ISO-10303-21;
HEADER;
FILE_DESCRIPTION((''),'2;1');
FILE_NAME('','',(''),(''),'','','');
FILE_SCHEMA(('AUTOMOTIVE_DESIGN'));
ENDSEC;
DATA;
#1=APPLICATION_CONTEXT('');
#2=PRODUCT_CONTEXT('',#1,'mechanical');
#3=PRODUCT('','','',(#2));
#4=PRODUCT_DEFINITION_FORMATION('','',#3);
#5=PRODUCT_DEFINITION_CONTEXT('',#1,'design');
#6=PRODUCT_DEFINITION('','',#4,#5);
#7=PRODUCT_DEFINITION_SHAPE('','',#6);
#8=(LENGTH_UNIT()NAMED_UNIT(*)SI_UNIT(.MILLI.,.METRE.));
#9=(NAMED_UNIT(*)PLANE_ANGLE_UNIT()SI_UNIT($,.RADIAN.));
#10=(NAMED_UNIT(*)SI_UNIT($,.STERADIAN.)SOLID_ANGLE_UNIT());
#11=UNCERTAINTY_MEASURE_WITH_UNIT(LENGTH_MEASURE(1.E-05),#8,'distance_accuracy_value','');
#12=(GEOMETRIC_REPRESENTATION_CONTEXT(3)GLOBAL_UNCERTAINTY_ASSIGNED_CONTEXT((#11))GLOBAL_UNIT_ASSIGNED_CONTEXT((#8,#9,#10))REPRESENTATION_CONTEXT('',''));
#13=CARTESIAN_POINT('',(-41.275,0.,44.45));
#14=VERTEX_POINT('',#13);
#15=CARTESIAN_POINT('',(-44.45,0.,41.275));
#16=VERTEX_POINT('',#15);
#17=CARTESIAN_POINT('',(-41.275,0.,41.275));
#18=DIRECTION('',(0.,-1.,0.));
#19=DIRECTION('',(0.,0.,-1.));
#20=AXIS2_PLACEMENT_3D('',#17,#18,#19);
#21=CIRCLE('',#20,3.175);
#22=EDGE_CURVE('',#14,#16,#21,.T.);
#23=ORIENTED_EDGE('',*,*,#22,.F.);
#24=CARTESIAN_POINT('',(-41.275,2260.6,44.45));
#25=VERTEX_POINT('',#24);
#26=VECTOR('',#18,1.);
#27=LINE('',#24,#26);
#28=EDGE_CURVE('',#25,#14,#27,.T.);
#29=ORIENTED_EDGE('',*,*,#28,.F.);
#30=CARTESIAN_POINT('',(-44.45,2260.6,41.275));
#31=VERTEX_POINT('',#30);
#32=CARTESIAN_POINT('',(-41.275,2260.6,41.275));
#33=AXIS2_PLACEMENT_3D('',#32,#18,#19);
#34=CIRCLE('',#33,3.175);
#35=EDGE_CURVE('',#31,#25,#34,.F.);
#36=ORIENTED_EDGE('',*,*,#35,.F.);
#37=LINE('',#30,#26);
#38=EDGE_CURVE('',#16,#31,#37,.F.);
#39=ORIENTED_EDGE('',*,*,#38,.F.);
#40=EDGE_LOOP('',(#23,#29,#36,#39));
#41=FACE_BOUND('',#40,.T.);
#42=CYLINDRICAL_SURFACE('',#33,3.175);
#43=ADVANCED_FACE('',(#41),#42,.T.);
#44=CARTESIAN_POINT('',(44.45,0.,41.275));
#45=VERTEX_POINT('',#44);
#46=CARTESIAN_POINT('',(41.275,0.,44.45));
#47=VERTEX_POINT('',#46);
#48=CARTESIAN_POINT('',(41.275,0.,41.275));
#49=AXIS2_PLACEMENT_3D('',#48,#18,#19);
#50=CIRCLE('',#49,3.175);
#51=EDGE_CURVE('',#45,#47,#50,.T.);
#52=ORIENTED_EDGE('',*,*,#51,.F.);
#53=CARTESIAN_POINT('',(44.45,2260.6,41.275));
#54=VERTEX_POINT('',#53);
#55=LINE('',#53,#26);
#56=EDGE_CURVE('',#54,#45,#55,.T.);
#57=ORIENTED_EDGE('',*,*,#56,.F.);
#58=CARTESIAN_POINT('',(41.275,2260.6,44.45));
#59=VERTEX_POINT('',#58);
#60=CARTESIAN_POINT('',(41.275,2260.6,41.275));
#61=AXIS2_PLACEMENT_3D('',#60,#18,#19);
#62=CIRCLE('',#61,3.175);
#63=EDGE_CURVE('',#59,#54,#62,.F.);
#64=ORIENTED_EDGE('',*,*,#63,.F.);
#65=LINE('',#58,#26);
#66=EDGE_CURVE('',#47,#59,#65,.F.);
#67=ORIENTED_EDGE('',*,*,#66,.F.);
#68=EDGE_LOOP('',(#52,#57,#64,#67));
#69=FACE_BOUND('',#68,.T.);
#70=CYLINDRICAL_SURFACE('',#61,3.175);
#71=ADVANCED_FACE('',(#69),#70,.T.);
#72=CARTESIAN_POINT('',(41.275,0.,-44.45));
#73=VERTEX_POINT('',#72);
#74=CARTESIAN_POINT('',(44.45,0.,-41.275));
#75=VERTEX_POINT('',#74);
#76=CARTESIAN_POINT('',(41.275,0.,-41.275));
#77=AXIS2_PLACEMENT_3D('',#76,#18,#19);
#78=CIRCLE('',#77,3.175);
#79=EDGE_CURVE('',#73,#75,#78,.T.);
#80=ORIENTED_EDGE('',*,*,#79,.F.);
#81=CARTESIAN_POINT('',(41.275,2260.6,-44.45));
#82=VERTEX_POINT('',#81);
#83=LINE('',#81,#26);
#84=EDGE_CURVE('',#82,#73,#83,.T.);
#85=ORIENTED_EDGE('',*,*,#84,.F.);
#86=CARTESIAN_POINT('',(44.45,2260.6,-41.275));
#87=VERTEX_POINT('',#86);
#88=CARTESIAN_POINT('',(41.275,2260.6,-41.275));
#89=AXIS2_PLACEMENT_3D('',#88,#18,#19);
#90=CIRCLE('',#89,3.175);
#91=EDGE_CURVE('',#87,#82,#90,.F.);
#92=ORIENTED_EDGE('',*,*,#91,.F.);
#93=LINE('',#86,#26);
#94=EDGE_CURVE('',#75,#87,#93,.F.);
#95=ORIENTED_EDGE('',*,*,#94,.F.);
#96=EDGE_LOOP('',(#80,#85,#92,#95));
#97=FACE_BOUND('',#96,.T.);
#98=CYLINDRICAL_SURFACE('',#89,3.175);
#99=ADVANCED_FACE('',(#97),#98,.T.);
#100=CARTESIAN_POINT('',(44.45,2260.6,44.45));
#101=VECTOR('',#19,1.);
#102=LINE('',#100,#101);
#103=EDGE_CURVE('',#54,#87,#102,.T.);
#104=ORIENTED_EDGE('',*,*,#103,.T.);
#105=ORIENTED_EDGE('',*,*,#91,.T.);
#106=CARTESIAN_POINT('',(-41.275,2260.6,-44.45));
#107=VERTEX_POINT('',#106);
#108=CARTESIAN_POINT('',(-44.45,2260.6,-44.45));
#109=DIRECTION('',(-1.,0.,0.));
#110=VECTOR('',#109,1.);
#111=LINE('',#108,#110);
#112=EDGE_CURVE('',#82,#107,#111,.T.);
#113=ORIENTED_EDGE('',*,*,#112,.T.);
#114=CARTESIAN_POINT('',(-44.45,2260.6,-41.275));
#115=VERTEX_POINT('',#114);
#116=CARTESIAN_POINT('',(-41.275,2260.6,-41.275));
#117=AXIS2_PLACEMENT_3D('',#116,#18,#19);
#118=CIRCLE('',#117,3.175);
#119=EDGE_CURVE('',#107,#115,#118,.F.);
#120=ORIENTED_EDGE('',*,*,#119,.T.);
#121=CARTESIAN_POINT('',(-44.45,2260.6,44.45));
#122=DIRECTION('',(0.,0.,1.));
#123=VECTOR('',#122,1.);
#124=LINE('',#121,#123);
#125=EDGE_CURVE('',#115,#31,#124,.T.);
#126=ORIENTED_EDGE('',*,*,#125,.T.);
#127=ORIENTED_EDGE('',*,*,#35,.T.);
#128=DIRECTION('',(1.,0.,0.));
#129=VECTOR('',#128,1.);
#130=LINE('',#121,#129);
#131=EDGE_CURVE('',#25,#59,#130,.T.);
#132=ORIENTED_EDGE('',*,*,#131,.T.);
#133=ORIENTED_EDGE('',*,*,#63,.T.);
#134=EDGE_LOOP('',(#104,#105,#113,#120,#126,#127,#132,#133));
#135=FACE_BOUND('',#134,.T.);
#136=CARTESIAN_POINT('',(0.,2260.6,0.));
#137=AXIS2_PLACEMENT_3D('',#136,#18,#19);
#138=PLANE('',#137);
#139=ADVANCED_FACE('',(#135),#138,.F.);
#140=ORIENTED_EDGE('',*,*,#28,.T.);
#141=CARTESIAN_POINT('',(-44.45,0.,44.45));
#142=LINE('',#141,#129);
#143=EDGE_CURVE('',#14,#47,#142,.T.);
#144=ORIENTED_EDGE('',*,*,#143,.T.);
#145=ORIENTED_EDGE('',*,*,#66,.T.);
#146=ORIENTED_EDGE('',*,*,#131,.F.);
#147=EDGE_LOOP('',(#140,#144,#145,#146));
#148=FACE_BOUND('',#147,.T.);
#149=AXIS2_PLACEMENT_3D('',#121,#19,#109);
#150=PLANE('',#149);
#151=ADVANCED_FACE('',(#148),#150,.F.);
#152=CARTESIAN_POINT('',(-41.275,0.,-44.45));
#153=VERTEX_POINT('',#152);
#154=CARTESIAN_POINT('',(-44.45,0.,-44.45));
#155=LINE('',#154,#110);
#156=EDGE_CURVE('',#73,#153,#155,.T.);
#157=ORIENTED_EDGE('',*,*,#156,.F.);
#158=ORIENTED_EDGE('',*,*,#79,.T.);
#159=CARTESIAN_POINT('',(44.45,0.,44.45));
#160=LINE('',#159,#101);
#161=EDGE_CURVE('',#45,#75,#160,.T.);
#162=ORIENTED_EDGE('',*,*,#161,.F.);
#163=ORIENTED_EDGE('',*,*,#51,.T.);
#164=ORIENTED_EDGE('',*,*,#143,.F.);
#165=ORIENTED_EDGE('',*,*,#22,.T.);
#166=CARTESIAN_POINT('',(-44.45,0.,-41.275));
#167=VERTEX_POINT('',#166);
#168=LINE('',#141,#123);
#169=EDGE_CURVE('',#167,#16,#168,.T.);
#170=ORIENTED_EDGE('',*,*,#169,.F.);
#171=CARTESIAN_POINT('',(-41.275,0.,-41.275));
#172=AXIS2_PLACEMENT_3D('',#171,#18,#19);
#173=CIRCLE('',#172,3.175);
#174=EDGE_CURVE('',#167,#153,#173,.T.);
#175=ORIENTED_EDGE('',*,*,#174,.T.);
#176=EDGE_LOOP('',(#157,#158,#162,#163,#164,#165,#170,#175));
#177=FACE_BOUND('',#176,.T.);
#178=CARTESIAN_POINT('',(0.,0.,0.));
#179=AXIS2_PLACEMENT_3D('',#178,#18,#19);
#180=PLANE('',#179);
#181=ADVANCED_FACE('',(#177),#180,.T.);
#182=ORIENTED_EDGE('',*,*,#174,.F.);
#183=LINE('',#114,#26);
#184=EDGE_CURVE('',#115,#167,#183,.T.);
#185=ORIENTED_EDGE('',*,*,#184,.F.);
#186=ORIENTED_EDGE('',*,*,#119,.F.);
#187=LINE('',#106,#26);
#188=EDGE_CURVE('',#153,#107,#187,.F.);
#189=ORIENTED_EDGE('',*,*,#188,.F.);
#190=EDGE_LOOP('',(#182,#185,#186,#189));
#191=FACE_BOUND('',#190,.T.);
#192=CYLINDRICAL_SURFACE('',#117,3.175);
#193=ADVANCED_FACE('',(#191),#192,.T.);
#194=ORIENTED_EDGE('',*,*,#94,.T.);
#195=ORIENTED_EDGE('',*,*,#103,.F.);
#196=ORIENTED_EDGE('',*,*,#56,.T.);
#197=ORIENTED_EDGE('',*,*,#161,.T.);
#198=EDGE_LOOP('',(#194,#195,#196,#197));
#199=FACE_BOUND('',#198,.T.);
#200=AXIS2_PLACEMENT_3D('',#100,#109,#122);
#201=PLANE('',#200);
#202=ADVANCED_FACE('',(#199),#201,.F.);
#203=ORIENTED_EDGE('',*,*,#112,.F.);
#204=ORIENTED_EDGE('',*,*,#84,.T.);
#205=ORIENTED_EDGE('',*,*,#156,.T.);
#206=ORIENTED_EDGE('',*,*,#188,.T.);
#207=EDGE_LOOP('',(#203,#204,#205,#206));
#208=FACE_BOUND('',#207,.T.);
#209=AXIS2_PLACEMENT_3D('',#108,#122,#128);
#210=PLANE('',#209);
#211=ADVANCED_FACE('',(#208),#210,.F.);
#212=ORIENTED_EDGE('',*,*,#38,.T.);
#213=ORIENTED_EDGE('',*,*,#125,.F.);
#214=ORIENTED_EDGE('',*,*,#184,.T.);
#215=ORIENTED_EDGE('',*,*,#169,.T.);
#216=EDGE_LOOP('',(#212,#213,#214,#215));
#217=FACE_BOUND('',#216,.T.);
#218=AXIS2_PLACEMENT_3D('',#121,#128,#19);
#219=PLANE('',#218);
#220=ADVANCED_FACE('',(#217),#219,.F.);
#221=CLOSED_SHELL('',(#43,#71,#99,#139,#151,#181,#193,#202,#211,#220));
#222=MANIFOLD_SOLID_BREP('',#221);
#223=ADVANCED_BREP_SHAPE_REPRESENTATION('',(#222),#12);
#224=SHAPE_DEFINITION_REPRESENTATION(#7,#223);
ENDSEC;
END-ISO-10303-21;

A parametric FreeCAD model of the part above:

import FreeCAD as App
import Part
import Sketcher
Q = App.Units.Quantity


def edges_at(feature, points):
    """Names of the edges that pass closest to the given points."""
    edges = feature.Shape.Edges
    near = lambda p: min(range(len(edges)), key=lambda i: edges[i].distToShape(Part.Vertex(*p))[0])
    return sorted({f"Edge{near(p) + 1}" for p in points})

doc = App.newDocument("Part")
body = doc.addObject("PartDesign::Body", "Body")

# Sketch on XZ plane
sketch1 = body.newObject("Sketcher::SketchObject", "Sketch")
sketch1.AttachmentSupport = (doc.getObject("XZ_Plane"), [""])
sketch1.MapMode = "FlatFace"
sketch1.addGeometry([
    Part.LineSegment(App.Vector(-44, -44, 0), App.Vector(-44, 44, 0)),
    Part.LineSegment(App.Vector(-44, 44, 0), App.Vector(44, 44, 0)),
    Part.LineSegment(App.Vector(44, 44, 0), App.Vector(44, -44, 0)),
    Part.LineSegment(App.Vector(44, -44, 0), App.Vector(-44, -44, 0)),
], False)
sketch1.addConstraint([
    Sketcher.Constraint("Coincident", 0, 2, 1, 1),
    Sketcher.Constraint("Coincident", 1, 2, 2, 1),
    Sketcher.Constraint("Coincident", 2, 2, 3, 1),
    Sketcher.Constraint("Coincident", 3, 2, 0, 1),
    Sketcher.Constraint("Vertical", 0),
    Sketcher.Constraint("Horizontal", 1),
    Sketcher.Constraint("Vertical", 2),
    Sketcher.Constraint("Horizontal", 3),
    Sketcher.Constraint("Symmetric", 0, 2, 2, 2, -1, 1),
    Sketcher.Constraint("Equal", 3, 0),
    Sketcher.Constraint("DistanceX", 1, 1, 1, 2, Q("3.5 in")),
])
pad1 = body.newObject("PartDesign::Pad", "Pad")
pad1.Profile = sketch1
pad1.Length = Q("89 in")
pad1.Reversed = True
doc.recompute()

fillet = body.newObject("PartDesign::Fillet", "Fillet")
fillet.Base = (pad1, edges_at(pad1, [
    (44.45, 1130.3, 44.45),
    (-44.45, 1130.3, 44.45),
    (-44.45, 1130.3, -44.45),
    (44.45, 1130.3, -44.45),
]))
fillet.Radius = Q("0.125 in")

doc.recompute()
